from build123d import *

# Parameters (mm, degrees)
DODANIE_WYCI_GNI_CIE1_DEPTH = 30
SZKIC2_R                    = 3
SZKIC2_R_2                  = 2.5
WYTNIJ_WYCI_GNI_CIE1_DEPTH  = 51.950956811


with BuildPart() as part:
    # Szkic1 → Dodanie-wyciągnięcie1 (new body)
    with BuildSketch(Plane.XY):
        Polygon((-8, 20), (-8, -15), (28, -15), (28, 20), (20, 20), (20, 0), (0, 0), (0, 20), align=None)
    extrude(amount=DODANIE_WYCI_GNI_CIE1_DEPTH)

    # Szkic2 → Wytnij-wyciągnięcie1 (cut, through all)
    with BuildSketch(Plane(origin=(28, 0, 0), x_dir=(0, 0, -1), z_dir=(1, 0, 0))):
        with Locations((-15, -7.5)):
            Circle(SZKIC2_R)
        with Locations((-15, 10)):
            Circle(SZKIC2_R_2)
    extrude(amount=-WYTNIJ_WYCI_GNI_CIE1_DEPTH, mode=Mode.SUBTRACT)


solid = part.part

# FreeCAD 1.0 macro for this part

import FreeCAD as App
import Part
import Sketcher
Q = App.Units.Quantity

doc = App.newDocument("Part")
body = doc.addObject("PartDesign::Body", "Body")

# Sketch on XY plane
sketch1 = body.newObject("Sketcher::SketchObject", "Sketch")
sketch1.AttachmentSupport = (doc.getObject("XY_Plane"), [""])
sketch1.MapMode = "FlatFace"
sketch1.addGeometry([
    Part.LineSegment(App.Vector(-8, 20, 0), App.Vector(-8, -15, 0)),  # 0
    Part.LineSegment(App.Vector(-8, -15, 0), App.Vector(28, -15, 0)),  # 1
    Part.LineSegment(App.Vector(28, -15, 0), App.Vector(28, 20, 0)),  # 2
    Part.LineSegment(App.Vector(28, 20, 0), App.Vector(20, 20, 0)),  # 3
    Part.LineSegment(App.Vector(20, 20, 0), App.Vector(20, 0, 0)),  # 4
    Part.LineSegment(App.Vector(20, 0, 0), App.Vector(0, 0, 0)),  # 5
    Part.LineSegment(App.Vector(0, 0, 0), App.Vector(0, 20, 0)),  # 6
    Part.LineSegment(App.Vector(0, 20, 0), App.Vector(-8, 20, 0)),  # 7
], False)
sketch1.addConstraint([
    Sketcher.Constraint("Coincident", 0, 2, 1, 1),
    Sketcher.Constraint("Coincident", 1, 2, 2, 1),
    Sketcher.Constraint("Coincident", 2, 2, 3, 1),
    Sketcher.Constraint("Coincident", 3, 2, 4, 1),
    Sketcher.Constraint("Coincident", 4, 2, 5, 1),
    Sketcher.Constraint("Coincident", 5, 2, 6, 1),
    Sketcher.Constraint("Coincident", 6, 2, 7, 1),
    Sketcher.Constraint("Coincident", 7, 2, 0, 1),
    Sketcher.Constraint("Vertical", 0),
    Sketcher.Constraint("Horizontal", 1),
    Sketcher.Constraint("Vertical", 2),
    Sketcher.Constraint("Horizontal", 3),
    Sketcher.Constraint("Vertical", 4),
    Sketcher.Constraint("Horizontal", 5),
    Sketcher.Constraint("Vertical", 6),
    Sketcher.Constraint("Horizontal", 7),
    Sketcher.Constraint("Coincident", 5, 2, -1, 1),
    Sketcher.Constraint("Horizontal", 3, 2, 6, 2),
    Sketcher.Constraint("Equal", 3, 7),
    Sketcher.Constraint("Equal", 5, 4),
    Sketcher.Constraint("DistanceX", 1, 1, 1, 2, Q("36 mm")),
    Sketcher.Constraint("DistanceX", 3, 2, 3, 1, Q("8 mm")),
    Sketcher.Constraint("DistanceY", 0, 2, 0, 1, Q("35 mm")),
])
pad1 = body.newObject("PartDesign::Pad", "Pad")
pad1.Profile = sketch1
pad1.Length = 30

# Sketch on YZ plane
sketch2 = body.newObject("Sketcher::SketchObject", "Sketch001")
sketch2.AttachmentSupport = (doc.getObject("YZ_Plane"), [""])
sketch2.MapMode = "FlatFace"
sketch2.AttachmentOffset = App.Placement(App.Vector(0, 0, 28), App.Rotation())
sketch2.addGeometry([
    Part.Circle(App.Vector(-7.5, 15, 0), App.Vector(0, 0, 1), 3),
    Part.Circle(App.Vector(10, 15, 0), App.Vector(0, 0, 1), 2.5),
], False)
sketch2.addConstraint([
    Sketcher.Constraint("Horizontal", 0, 3, 1, 3),
    Sketcher.Constraint("Diameter", 0, Q("6 mm")),
    Sketcher.Constraint("Diameter", 1, Q("5 mm")),
    Sketcher.Constraint("DistanceY", -1, 1, 0, 3, Q("15 mm")),
    Sketcher.Constraint("DistanceX", -1, 1, 1, 3, Q("10 mm")),
    Sketcher.Constraint("DistanceX", 0, 3, -1, 1, Q("7.5 mm")),
])
pocket1 = body.newObject("PartDesign::Pocket", "Pocket")
pocket1.Profile = sketch2
pocket1.Type = "ThroughAll"

doc.recompute()
